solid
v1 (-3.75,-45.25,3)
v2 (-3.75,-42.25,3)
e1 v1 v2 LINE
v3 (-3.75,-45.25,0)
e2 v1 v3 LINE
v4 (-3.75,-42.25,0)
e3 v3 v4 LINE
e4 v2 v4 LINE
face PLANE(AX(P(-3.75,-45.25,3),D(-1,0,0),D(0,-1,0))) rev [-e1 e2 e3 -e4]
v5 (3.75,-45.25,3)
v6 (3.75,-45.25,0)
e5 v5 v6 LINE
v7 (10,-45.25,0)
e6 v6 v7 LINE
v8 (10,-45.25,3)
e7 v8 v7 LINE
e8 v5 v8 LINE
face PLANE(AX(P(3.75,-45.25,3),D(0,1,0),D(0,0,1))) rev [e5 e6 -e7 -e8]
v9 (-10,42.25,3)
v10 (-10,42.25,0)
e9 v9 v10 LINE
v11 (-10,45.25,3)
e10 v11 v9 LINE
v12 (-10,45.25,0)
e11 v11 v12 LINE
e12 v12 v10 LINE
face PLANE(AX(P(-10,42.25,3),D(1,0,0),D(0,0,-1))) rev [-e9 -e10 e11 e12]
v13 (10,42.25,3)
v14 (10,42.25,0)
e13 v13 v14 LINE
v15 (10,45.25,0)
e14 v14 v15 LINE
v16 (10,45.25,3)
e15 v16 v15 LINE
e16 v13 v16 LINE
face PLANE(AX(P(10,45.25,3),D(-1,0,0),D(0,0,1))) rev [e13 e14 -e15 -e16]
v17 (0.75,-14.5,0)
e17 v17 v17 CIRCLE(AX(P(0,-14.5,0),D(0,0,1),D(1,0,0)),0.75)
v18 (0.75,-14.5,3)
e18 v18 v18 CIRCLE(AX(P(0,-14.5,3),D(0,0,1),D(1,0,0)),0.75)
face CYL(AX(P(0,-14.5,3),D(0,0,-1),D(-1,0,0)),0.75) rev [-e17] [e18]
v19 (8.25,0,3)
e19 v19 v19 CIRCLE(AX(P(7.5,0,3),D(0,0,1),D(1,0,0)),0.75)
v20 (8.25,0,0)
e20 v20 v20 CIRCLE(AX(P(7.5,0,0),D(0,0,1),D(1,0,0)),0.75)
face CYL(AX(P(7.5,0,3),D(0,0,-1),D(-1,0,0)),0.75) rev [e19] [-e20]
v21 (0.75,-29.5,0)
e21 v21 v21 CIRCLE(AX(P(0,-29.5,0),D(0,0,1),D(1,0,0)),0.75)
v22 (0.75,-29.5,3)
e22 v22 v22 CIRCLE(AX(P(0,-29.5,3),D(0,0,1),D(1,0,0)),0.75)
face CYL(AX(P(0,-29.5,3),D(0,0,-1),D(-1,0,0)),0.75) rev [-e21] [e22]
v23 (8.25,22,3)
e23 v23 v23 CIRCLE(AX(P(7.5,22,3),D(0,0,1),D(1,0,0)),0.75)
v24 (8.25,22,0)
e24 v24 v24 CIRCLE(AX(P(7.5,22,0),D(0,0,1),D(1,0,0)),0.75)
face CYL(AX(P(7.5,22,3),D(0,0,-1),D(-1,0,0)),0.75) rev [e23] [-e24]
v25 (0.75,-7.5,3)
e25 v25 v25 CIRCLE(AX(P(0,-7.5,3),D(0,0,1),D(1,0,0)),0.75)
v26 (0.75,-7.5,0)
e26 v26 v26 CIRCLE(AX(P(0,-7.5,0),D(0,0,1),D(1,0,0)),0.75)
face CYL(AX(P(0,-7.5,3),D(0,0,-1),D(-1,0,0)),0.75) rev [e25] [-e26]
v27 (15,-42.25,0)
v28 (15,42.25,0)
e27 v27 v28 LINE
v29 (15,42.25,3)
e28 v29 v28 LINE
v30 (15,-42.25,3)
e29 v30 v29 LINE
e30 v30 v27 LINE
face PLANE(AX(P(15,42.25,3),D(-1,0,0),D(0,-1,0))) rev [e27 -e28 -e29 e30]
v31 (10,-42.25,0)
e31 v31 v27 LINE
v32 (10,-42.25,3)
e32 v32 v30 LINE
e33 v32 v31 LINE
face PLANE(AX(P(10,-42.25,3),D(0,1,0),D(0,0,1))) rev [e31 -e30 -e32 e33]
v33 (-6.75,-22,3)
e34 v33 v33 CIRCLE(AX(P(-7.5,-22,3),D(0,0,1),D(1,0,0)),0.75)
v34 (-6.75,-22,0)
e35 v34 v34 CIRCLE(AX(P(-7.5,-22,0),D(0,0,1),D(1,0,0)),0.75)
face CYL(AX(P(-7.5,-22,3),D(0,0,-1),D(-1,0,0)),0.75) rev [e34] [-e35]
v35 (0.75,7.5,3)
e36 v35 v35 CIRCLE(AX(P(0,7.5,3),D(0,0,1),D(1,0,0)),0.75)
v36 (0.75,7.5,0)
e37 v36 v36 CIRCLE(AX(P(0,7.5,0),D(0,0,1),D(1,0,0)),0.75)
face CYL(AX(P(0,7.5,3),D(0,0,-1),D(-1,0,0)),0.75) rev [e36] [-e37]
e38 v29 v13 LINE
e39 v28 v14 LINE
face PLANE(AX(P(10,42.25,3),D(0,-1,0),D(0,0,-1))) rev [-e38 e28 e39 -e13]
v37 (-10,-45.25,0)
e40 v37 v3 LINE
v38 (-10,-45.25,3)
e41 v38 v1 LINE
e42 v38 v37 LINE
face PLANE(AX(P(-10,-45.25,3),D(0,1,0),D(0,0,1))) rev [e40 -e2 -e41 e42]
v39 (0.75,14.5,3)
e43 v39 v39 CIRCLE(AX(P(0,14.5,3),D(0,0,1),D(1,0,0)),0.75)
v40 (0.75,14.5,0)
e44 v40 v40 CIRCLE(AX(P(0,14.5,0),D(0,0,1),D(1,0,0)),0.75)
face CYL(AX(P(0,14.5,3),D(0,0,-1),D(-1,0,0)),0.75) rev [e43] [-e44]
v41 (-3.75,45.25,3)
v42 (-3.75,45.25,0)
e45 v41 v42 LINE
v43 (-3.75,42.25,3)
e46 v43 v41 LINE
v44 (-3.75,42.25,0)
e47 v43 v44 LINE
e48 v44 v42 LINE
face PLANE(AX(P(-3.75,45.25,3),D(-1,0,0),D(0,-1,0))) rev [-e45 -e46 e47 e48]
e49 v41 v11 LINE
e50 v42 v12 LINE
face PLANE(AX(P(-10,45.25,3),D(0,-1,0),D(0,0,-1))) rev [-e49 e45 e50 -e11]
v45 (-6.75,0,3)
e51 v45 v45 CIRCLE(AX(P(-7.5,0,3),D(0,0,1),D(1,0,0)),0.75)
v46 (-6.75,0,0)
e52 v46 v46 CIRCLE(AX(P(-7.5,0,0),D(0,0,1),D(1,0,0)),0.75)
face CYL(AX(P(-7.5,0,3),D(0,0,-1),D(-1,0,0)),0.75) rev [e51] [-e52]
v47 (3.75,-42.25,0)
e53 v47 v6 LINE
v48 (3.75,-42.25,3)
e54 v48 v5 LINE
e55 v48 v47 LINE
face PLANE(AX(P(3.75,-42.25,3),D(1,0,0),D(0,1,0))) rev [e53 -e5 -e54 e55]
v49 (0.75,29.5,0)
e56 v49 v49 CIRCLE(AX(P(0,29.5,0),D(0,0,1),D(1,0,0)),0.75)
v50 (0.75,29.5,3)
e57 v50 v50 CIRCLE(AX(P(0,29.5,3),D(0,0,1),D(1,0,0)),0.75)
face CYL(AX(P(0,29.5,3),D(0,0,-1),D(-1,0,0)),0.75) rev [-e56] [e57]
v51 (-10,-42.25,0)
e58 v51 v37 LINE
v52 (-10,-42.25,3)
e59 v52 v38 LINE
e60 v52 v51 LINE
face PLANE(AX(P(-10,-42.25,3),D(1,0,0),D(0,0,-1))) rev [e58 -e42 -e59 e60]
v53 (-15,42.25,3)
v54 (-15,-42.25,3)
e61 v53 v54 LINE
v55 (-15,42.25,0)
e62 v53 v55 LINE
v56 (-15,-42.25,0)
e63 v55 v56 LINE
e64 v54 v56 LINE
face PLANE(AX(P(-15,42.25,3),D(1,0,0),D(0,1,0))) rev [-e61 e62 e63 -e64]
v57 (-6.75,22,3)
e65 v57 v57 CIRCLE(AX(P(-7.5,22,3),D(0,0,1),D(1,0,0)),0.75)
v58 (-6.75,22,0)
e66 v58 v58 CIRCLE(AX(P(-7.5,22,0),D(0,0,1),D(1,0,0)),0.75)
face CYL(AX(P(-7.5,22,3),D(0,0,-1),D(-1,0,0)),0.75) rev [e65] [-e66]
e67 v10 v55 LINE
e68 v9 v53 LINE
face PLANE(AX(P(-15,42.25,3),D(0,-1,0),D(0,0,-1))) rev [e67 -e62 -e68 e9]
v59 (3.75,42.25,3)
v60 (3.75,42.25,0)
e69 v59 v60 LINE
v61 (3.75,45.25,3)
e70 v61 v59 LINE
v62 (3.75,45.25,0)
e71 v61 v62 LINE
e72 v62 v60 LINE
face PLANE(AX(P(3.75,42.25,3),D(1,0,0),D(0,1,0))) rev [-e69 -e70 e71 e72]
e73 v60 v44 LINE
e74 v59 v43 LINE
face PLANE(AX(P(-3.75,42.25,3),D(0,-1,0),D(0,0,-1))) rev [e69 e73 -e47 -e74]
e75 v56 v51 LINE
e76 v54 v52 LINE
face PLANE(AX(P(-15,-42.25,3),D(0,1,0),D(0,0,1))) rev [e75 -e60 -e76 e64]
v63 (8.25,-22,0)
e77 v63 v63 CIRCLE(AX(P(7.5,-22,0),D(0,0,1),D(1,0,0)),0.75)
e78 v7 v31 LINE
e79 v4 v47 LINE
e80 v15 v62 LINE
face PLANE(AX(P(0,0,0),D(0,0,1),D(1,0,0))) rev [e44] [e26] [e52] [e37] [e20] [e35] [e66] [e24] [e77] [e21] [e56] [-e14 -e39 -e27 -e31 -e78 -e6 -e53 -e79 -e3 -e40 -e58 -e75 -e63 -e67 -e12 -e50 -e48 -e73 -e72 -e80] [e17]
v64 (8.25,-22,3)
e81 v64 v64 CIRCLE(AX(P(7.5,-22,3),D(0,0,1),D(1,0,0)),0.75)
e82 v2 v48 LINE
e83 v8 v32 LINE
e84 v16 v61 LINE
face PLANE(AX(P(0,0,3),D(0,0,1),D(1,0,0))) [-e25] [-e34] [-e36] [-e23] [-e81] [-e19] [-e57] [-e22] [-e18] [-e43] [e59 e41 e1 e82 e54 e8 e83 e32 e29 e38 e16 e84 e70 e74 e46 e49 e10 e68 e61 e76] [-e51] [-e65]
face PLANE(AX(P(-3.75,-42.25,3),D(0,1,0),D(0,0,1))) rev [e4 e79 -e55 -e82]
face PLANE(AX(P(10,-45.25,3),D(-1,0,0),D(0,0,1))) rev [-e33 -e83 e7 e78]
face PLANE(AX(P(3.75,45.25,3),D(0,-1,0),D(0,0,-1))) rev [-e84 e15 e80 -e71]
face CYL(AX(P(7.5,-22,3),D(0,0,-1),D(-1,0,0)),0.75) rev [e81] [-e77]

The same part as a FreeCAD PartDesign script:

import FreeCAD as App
import Part
import Sketcher

V = App.Vector

doc = App.newDocument("Part")
body = doc.addObject("PartDesign::Body", "Body")

# Sketch on XY plane
sketch1 = body.newObject("Sketcher::SketchObject", "Sketch")
sketch1.AttachmentSupport = (doc.getObject("XY_Plane"), [""])
sketch1.MapMode = "FlatFace"
sketch1.addGeometry([
    Part.LineSegment(V(-10, 42.2, 0), V(-15, 42.2, 0)),  # 0
    Part.LineSegment(V(-15, 42.2, 0), V(-15, -42.2, 0)),  # 1
    Part.LineSegment(V(-15, -42.2, 0), V(-10, -42.2, 0)),  # 2
    Part.LineSegment(V(-10, -42.2, 0), V(-10, -45.2, 0)),  # 3
    Part.LineSegment(V(-10, -45.2, 0), V(-3.8, -45.2, 0)),  # 4
    Part.LineSegment(V(-3.8, -45.2, 0), V(-3.8, -42.2, 0)),  # 5
    Part.LineSegment(V(-3.8, -42.2, 0), V(3.8, -42.2, 0)),  # 6
    Part.LineSegment(V(3.8, -42.2, 0), V(3.8, -45.2, 0)),  # 7
    Part.LineSegment(V(3.8, -45.2, 0), V(10, -45.2, 0)),  # 8
    Part.LineSegment(V(10, -45.2, 0), V(10, -42.2, 0)),  # 9
    Part.LineSegment(V(10, -42.2, 0), V(15, -42.2, 0)),  # 10
    Part.LineSegment(V(15, -42.2, 0), V(15, 42.2, 0)),  # 11
    Part.LineSegment(V(15, 42.2, 0), V(10, 42.2, 0)),  # 12
    Part.LineSegment(V(10, 42.2, 0), V(10, 45.2, 0)),  # 13
    Part.LineSegment(V(10, 45.2, 0), V(3.8, 45.2, 0)),  # 14
    Part.LineSegment(V(3.8, 45.2, 0), V(3.8, 42.2, 0)),  # 15
    Part.LineSegment(V(3.8, 42.2, 0), V(-3.8, 42.2, 0)),  # 16
    Part.LineSegment(V(-3.8, 42.2, 0), V(-3.8, 45.2, 0)),  # 17
    Part.LineSegment(V(-3.8, 45.2, 0), V(-10, 45.2, 0)),  # 18
    Part.LineSegment(V(-10, 45.2, 0), V(-10, 42.2, 0)),  # 19
    Part.Circle(V(7.5, -22, 0), V(0, 0, 1), 0.8),  # 20
    Part.Circle(V(0, -29.5, 0), V(0, 0, 1), 0.8),  # 21
    Part.Circle(V(-7.5, -22, 0), V(0, 0, 1), 0.8),  # 22
    Part.Circle(V(0, -14.5, 0), V(0, 0, 1), 0.8),  # 23
    Part.Circle(V(0, -7.5, 0), V(0, 0, 1), 0.8),  # 24
    Part.Circle(V(7.5, 0, 0), V(0, 0, 1), 0.8),  # 25
    Part.Circle(V(7.5, 22, 0), V(0, 0, 1), 0.8),  # 26
    Part.Circle(V(0, 7.5, 0), V(0, 0, 1), 0.8),  # 27
    Part.Circle(V(0, 14.5, 0), V(0, 0, 1), 0.8),  # 28
    Part.Circle(V(-7.5, 0, 0), V(0, 0, 1), 0.8),  # 29
    Part.Circle(V(0, 29.5, 0), V(0, 0, 1), 0.8),  # 30
    Part.Circle(V(-7.5, 22, 0), V(0, 0, 1), 0.8),  # 31
], False)
sketch1.addConstraint([
    Sketcher.Constraint("Coincident", 0, 2, 1, 1),
    Sketcher.Constraint("Coincident", 1, 2, 2, 1),
    Sketcher.Constraint("Coincident", 2, 2, 3, 1),
    Sketcher.Constraint("Coincident", 3, 2, 4, 1),
    Sketcher.Constraint("Coincident", 4, 2, 5, 1),
    Sketcher.Constraint("Coincident", 5, 2, 6, 1),
    Sketcher.Constraint("Coincident", 6, 2, 7, 1),
    Sketcher.Constraint("Coincident", 7, 2, 8, 1),
    Sketcher.Constraint("Coincident", 8, 2, 9, 1),
    Sketcher.Constraint("Coincident", 9, 2, 10, 1),
    Sketcher.Constraint("Coincident", 10, 2, 11, 1),
    Sketcher.Constraint("Coincident", 11, 2, 12, 1),
    Sketcher.Constraint("Coincident", 12, 2, 13, 1),
    Sketcher.Constraint("Coincident", 13, 2, 14, 1),
    Sketcher.Constraint("Coincident", 14, 2, 15, 1),
    Sketcher.Constraint("Coincident", 15, 2, 16, 1),
    Sketcher.Constraint("Coincident", 16, 2, 17, 1),
    Sketcher.Constraint("Coincident", 17, 2, 18, 1),
    Sketcher.Constraint("Coincident", 18, 2, 19, 1),
    Sketcher.Constraint("Coincident", 19, 2, 0, 1),
    Sketcher.Constraint("Horizontal", 0),
    Sketcher.Constraint("Vertical", 1),
    Sketcher.Constraint("Horizontal", 2),
    Sketcher.Constraint("Vertical", 3),
    Sketcher.Constraint("Horizontal", 4),
    Sketcher.Constraint("Vertical", 5),
    Sketcher.Constraint("Horizontal", 6),
    Sketcher.Constraint("Vertical", 7),
    Sketcher.Constraint("Horizontal", 8),
    Sketcher.Constraint("Vertical", 9),
    Sketcher.Constraint("Horizontal", 10),
    Sketcher.Constraint("Vertical", 11),
    Sketcher.Constraint("Horizontal", 12),
    Sketcher.Constraint("Vertical", 13),
    Sketcher.Constraint("Horizontal", 14),
    Sketcher.Constraint("Vertical", 15),
    Sketcher.Constraint("Horizontal", 16),
    Sketcher.Constraint("Vertical", 17),
    Sketcher.Constraint("Horizontal", 18),
    Sketcher.Constraint("Vertical", 19),
    Sketcher.Constraint("Equal", 20, 21),
    Sketcher.Constraint("Equal", 21, 22),
    Sketcher.Constraint("Equal", 22, 23),
    Sketcher.Constraint("Equal", 23, 24),
    Sketcher.Constraint("Equal", 24, 25),
    Sketcher.Constraint("Equal", 25, 26),
    Sketcher.Constraint("Equal", 26, 27),
    Sketcher.Constraint("Equal", 27, 28),
    Sketcher.Constraint("Equal", 28, 29),
    Sketcher.Constraint("Equal", 29, 30),
    Sketcher.Constraint("Equal", 30, 31),
    Sketcher.Constraint("Symmetric", 22, 3, 26, 3, -1, 1),
    Sketcher.Constraint("Symmetric", 24, 3, 27, 3, -1, 1),
    Sketcher.Constraint("Symmetric", 23, 3, 28, 3, -1, 1),
    Sketcher.Constraint("Symmetric", 25, 3, 29, 3, -1, 1),
    Sketcher.Constraint("Symmetric", 21, 3, 30, 3, -1, 1),
    Sketcher.Constraint("Symmetric", 20, 3, 31, 3, -1, 1),
    Sketcher.Constraint("Symmetric", 0, 2, 10, 2, -1, 1),
    Sketcher.Constraint("Symmetric", 2, 2, 12, 2, -1, 1),
    Sketcher.Constraint("Symmetric", 4, 2, 14, 2, -1, 1),
    Sketcher.Constraint("Symmetric", 6, 2, 16, 2, -1, 1),
    Sketcher.Constraint("Symmetric", 8, 2, 18, 2, -1, 1),
    Sketcher.Constraint("Symmetric", 20, 3, 22, 3, -2),
    Sketcher.Constraint("Symmetric", 4, 2, 7, 2, -2),
    Sketcher.Constraint("Symmetric", 2, 2, 9, 2, -2),
    Sketcher.Constraint("PointOnObject", 21, 3, -2),
    Sketcher.Constraint("PointOnObject", 23, 3, -2),
    Sketcher.Constraint("PointOnObject", 24, 3, -2),
    Sketcher.Constraint("PointOnObject", 25, 3, -1),
    Sketcher.Constraint("Horizontal", 2, 2, 5, 2),
    Sketcher.Constraint("Vertical", 20, 3, 25, 3),
    Sketcher.Constraint("Diameter", 20, 1.5),
    Sketcher.Constraint("DistanceX", 0, 2, 0, 1, 5.0),
    Sketcher.Constraint("DistanceY", 3, 2, 3, 1, 3.0),
    Sketcher.Constraint("DistanceX", 6, 1, 6, 2, 7.5),
    Sketcher.Constraint("DistanceY", 1, 2, 1, 1, 84.5),
    Sketcher.Constraint("DistanceY", 20, 3, -1, 1, 22.0),
    Sketcher.Constraint("DistanceX", 0, 2, -1, 1, 15.0),
    Sketcher.Constraint("DistanceX", 22, 3, 20, 3, 15.0),
    Sketcher.Constraint("DistanceY", 21, 3, 23, 3, 15.0),
    Sketcher.Constraint("DistanceY", 23, 3, 24, 3, 7.0),
    Sketcher.Constraint("DistanceY", 24, 3, 27, 3, 15.0),
])
pad1 = body.newObject("PartDesign::Pad", "Pad")
pad1.Profile = sketch1
pad1.Length = 3

doc.recompute()
